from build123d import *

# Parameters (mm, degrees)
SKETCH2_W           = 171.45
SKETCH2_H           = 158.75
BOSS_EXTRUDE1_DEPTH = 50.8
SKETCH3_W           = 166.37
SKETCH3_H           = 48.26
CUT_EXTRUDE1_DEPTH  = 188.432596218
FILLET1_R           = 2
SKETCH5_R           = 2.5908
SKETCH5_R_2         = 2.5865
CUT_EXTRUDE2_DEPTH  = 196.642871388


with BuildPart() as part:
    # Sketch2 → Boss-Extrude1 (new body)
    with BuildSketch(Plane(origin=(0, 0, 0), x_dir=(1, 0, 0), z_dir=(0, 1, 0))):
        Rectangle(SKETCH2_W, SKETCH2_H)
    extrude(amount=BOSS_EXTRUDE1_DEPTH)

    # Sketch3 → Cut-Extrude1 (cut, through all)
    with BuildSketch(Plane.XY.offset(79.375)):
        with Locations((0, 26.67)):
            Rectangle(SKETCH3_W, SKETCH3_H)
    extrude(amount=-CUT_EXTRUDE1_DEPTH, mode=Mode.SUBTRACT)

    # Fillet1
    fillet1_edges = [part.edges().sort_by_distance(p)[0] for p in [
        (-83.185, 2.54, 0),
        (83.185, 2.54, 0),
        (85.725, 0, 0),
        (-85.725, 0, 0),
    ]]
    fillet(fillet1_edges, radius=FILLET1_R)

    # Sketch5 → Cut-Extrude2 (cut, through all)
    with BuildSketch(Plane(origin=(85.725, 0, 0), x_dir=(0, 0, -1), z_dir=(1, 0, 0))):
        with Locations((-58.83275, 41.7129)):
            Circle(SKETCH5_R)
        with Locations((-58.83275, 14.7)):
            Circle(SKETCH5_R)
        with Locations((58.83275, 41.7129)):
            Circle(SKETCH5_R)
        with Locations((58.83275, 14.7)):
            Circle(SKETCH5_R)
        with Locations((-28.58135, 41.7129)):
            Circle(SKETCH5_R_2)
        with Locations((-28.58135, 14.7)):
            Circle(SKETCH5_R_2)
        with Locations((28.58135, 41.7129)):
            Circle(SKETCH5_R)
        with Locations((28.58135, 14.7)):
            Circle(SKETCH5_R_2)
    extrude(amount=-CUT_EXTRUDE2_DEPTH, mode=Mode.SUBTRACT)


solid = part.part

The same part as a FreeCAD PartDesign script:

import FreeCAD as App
import Part
import Sketcher
Q = App.Units.Quantity


def edges_at(feature, points):
    """Names of the edges that pass closest to the given points."""
    edges = feature.Shape.Edges
    near = lambda p: min(range(len(edges)), key=lambda i: edges[i].distToShape(Part.Vertex(*p))[0])
    return sorted({f"Edge{near(p) + 1}" for p in points})


def add_polygon(sketch, points):
    """Adds a closed chain of lines whose ends are joined by coincident constraints."""
    first, n = sketch.GeometryCount, len(points)
    for a, b in zip(points, points[1:] + points[:1]):
        sketch.addGeometry(Part.LineSegment(App.Vector(*a, 0), App.Vector(*b, 0)), False)
    for i in range(n):
        sketch.addConstraint(Sketcher.Constraint("Coincident", first + i, 2, first + (i + 1) % n, 1))

doc = App.newDocument("Part")
body = doc.addObject("PartDesign::Body", "Body")

# Sketch on XZ plane
sketch1 = body.newObject("Sketcher::SketchObject", "Sketch")
sketch1.AttachmentSupport = (doc.getObject("XZ_Plane"), [""])
sketch1.MapMode = "FlatFace"
add_polygon(sketch1, [(-85.725, -79.375), (-85.725, 79.375), (85.725, 79.375), (85.725, -79.375)])  # lines 0-3
sketch1.addConstraint(Sketcher.Constraint("Vertical", 0))
sketch1.addConstraint(Sketcher.Constraint("Horizontal", 1))
sketch1.addConstraint(Sketcher.Constraint("Vertical", 2))
sketch1.addConstraint(Sketcher.Constraint("Horizontal", 3))
sketch1.addConstraint(Sketcher.Constraint("Symmetric", 0, 2, 2, 2, -1, 1))
sketch1.addConstraint(Sketcher.Constraint("DistanceX", 1, 1, 1, 2, Q("6.75 in")))
sketch1.addConstraint(Sketcher.Constraint("DistanceY", 0, 1, 0, 2, Q("6.25 in")))
pad1 = body.newObject("PartDesign::Pad", "Pad")
pad1.Profile = sketch1
pad1.Length = Q("2 in")
pad1.Reversed = True

# Sketch on XY plane
sketch2 = body.newObject("Sketcher::SketchObject", "Sketch001")
sketch2.AttachmentSupport = (doc.getObject("XY_Plane"), [""])
sketch2.MapMode = "FlatFace"
sketch2.AttachmentOffset = App.Placement(App.Vector(0, 0, 3.125 * 25.4), App.Rotation())
add_polygon(sketch2, [(-83.185, 50.8), (-83.185, 2.54), (83.185, 2.54), (83.185, 50.8)])  # lines 0-3
sketch2.addConstraint(Sketcher.Constraint("Vertical", 0))
sketch2.addConstraint(Sketcher.Constraint("Horizontal", 1))
sketch2.addConstraint(Sketcher.Constraint("Vertical", 2))
sketch2.addConstraint(Sketcher.Constraint("Horizontal", 3))
sketch2.addConstraint(Sketcher.Constraint("DistanceY", 0, 2, 0, 1, Q("1.9 in")))
sketch2.addConstraint(Sketcher.Constraint("DistanceY", -1, 1, 2, 2, Q("2 in")))
sketch2.addConstraint(Sketcher.Constraint("DistanceX", 1, 1, 1, 2, Q("6.55 in")))
sketch2.addConstraint(Sketcher.Constraint("DistanceX", 0, 2, -1, 1, Q("3.275 in")))
pocket1 = body.newObject("PartDesign::Pocket", "Pocket")
pocket1.Profile = sketch2
pocket1.Type = "ThroughAll"
doc.recompute()

fillet = body.newObject("PartDesign::Fillet", "Fillet")
fillet.Base = (pocket1, edges_at(pocket1, [
    (-83.185, 2.54, 0),
    (83.185, 2.54, 0),
    (85.725, 0, 0),
    (-85.725, 0, 0),
]))
fillet.Radius = 2

# Sketch on YZ plane
sketch3 = body.newObject("Sketcher::SketchObject", "Sketch002")
sketch3.AttachmentSupport = (doc.getObject("YZ_Plane"), [""])
sketch3.MapMode = "FlatFace"
sketch3.AttachmentOffset = App.Placement(App.Vector(0, 0, 3.375 * 25.4), App.Rotation())
sketch3.addGeometry(Part.Circle(App.Vector(41.7129, 58.83275, 0), App.Vector(0, 0, 1), 2.5908), False)
sketch3.addGeometry(Part.Circle(App.Vector(14.7, 58.83275, 0), App.Vector(0, 0, 1), 2.5908), False)
sketch3.addGeometry(Part.Circle(App.Vector(41.7129, -58.83275, 0), App.Vector(0, 0, 1), 2.5908), False)
sketch3.addGeometry(Part.Circle(App.Vector(14.7, -58.83275, 0), App.Vector(0, 0, 1), 2.5908), False)
sketch3.addGeometry(Part.Circle(App.Vector(41.7129, 28.58135, 0), App.Vector(0, 0, 1), 2.5865), False)
sketch3.addGeometry(Part.Circle(App.Vector(14.7, 28.58135, 0), App.Vector(0, 0, 1), 2.5865), False)
sketch3.addGeometry(Part.Circle(App.Vector(41.7129, -28.58135, 0), App.Vector(0, 0, 1), 2.5908), False)
sketch3.addGeometry(Part.Circle(App.Vector(14.7, -28.58135, 0), App.Vector(0, 0, 1), 2.5865), False)
sketch3.addConstraint(Sketcher.Constraint("Equal", 0, 1))
sketch3.addConstraint(Sketcher.Constraint("Equal", 1, 2))
sketch3.addConstraint(Sketcher.Constraint("Equal", 2, 3))
sketch3.addConstraint(Sketcher.Constraint("Equal", 4, 5))
sketch3.addConstraint(Sketcher.Constraint("Equal", 3, 6))
sketch3.addConstraint(Sketcher.Constraint("Equal", 5, 7))
sketch3.addConstraint(Sketcher.Constraint("Symmetric", 0, 3, 2, 3, -1))
sketch3.addConstraint(Sketcher.Constraint("Symmetric", 1, 3, 3, 3, -1))
sketch3.addConstraint(Sketcher.Constraint("Symmetric", 4, 3, 6, 3, -1))
sketch3.addConstraint(Sketcher.Constraint("Symmetric", 5, 3, 7, 3, -1))
sketch3.addConstraint(Sketcher.Constraint("Horizontal", 0, 3, 1, 3))
sketch3.addConstraint(Sketcher.Constraint("Horizontal", 4, 3, 5, 3))
sketch3.addConstraint(Sketcher.Constraint("Vertical", 2, 3, 4, 3))
sketch3.addConstraint(Sketcher.Constraint("Vertical", 3, 3, 5, 3))
sketch3.addConstraint(Sketcher.Constraint("Diameter", 0, Q("0.204 in")))
sketch3.addConstraint(Sketcher.Constraint("Diameter", 4, 5.173))
sketch3.addConstraint(Sketcher.Constraint("DistanceY", 4, 3, 0, 3, Q("1.191 in")))
sketch3.addConstraint(Sketcher.Constraint("DistanceX", 1, 3, 0, 3, Q("1.0635 in")))
sketch3.addConstraint(Sketcher.Constraint("DistanceY", 2, 3, 0, 3, Q("4.6325 in")))
sketch3.addConstraint(Sketcher.Constraint("DistanceX", -1, 1, 0, 3, 41.7129))
pocket2 = body.newObject("PartDesign::Pocket", "Pocket001")
pocket2.Profile = sketch3
pocket2.Type = "ThroughAll"

doc.recompute()
